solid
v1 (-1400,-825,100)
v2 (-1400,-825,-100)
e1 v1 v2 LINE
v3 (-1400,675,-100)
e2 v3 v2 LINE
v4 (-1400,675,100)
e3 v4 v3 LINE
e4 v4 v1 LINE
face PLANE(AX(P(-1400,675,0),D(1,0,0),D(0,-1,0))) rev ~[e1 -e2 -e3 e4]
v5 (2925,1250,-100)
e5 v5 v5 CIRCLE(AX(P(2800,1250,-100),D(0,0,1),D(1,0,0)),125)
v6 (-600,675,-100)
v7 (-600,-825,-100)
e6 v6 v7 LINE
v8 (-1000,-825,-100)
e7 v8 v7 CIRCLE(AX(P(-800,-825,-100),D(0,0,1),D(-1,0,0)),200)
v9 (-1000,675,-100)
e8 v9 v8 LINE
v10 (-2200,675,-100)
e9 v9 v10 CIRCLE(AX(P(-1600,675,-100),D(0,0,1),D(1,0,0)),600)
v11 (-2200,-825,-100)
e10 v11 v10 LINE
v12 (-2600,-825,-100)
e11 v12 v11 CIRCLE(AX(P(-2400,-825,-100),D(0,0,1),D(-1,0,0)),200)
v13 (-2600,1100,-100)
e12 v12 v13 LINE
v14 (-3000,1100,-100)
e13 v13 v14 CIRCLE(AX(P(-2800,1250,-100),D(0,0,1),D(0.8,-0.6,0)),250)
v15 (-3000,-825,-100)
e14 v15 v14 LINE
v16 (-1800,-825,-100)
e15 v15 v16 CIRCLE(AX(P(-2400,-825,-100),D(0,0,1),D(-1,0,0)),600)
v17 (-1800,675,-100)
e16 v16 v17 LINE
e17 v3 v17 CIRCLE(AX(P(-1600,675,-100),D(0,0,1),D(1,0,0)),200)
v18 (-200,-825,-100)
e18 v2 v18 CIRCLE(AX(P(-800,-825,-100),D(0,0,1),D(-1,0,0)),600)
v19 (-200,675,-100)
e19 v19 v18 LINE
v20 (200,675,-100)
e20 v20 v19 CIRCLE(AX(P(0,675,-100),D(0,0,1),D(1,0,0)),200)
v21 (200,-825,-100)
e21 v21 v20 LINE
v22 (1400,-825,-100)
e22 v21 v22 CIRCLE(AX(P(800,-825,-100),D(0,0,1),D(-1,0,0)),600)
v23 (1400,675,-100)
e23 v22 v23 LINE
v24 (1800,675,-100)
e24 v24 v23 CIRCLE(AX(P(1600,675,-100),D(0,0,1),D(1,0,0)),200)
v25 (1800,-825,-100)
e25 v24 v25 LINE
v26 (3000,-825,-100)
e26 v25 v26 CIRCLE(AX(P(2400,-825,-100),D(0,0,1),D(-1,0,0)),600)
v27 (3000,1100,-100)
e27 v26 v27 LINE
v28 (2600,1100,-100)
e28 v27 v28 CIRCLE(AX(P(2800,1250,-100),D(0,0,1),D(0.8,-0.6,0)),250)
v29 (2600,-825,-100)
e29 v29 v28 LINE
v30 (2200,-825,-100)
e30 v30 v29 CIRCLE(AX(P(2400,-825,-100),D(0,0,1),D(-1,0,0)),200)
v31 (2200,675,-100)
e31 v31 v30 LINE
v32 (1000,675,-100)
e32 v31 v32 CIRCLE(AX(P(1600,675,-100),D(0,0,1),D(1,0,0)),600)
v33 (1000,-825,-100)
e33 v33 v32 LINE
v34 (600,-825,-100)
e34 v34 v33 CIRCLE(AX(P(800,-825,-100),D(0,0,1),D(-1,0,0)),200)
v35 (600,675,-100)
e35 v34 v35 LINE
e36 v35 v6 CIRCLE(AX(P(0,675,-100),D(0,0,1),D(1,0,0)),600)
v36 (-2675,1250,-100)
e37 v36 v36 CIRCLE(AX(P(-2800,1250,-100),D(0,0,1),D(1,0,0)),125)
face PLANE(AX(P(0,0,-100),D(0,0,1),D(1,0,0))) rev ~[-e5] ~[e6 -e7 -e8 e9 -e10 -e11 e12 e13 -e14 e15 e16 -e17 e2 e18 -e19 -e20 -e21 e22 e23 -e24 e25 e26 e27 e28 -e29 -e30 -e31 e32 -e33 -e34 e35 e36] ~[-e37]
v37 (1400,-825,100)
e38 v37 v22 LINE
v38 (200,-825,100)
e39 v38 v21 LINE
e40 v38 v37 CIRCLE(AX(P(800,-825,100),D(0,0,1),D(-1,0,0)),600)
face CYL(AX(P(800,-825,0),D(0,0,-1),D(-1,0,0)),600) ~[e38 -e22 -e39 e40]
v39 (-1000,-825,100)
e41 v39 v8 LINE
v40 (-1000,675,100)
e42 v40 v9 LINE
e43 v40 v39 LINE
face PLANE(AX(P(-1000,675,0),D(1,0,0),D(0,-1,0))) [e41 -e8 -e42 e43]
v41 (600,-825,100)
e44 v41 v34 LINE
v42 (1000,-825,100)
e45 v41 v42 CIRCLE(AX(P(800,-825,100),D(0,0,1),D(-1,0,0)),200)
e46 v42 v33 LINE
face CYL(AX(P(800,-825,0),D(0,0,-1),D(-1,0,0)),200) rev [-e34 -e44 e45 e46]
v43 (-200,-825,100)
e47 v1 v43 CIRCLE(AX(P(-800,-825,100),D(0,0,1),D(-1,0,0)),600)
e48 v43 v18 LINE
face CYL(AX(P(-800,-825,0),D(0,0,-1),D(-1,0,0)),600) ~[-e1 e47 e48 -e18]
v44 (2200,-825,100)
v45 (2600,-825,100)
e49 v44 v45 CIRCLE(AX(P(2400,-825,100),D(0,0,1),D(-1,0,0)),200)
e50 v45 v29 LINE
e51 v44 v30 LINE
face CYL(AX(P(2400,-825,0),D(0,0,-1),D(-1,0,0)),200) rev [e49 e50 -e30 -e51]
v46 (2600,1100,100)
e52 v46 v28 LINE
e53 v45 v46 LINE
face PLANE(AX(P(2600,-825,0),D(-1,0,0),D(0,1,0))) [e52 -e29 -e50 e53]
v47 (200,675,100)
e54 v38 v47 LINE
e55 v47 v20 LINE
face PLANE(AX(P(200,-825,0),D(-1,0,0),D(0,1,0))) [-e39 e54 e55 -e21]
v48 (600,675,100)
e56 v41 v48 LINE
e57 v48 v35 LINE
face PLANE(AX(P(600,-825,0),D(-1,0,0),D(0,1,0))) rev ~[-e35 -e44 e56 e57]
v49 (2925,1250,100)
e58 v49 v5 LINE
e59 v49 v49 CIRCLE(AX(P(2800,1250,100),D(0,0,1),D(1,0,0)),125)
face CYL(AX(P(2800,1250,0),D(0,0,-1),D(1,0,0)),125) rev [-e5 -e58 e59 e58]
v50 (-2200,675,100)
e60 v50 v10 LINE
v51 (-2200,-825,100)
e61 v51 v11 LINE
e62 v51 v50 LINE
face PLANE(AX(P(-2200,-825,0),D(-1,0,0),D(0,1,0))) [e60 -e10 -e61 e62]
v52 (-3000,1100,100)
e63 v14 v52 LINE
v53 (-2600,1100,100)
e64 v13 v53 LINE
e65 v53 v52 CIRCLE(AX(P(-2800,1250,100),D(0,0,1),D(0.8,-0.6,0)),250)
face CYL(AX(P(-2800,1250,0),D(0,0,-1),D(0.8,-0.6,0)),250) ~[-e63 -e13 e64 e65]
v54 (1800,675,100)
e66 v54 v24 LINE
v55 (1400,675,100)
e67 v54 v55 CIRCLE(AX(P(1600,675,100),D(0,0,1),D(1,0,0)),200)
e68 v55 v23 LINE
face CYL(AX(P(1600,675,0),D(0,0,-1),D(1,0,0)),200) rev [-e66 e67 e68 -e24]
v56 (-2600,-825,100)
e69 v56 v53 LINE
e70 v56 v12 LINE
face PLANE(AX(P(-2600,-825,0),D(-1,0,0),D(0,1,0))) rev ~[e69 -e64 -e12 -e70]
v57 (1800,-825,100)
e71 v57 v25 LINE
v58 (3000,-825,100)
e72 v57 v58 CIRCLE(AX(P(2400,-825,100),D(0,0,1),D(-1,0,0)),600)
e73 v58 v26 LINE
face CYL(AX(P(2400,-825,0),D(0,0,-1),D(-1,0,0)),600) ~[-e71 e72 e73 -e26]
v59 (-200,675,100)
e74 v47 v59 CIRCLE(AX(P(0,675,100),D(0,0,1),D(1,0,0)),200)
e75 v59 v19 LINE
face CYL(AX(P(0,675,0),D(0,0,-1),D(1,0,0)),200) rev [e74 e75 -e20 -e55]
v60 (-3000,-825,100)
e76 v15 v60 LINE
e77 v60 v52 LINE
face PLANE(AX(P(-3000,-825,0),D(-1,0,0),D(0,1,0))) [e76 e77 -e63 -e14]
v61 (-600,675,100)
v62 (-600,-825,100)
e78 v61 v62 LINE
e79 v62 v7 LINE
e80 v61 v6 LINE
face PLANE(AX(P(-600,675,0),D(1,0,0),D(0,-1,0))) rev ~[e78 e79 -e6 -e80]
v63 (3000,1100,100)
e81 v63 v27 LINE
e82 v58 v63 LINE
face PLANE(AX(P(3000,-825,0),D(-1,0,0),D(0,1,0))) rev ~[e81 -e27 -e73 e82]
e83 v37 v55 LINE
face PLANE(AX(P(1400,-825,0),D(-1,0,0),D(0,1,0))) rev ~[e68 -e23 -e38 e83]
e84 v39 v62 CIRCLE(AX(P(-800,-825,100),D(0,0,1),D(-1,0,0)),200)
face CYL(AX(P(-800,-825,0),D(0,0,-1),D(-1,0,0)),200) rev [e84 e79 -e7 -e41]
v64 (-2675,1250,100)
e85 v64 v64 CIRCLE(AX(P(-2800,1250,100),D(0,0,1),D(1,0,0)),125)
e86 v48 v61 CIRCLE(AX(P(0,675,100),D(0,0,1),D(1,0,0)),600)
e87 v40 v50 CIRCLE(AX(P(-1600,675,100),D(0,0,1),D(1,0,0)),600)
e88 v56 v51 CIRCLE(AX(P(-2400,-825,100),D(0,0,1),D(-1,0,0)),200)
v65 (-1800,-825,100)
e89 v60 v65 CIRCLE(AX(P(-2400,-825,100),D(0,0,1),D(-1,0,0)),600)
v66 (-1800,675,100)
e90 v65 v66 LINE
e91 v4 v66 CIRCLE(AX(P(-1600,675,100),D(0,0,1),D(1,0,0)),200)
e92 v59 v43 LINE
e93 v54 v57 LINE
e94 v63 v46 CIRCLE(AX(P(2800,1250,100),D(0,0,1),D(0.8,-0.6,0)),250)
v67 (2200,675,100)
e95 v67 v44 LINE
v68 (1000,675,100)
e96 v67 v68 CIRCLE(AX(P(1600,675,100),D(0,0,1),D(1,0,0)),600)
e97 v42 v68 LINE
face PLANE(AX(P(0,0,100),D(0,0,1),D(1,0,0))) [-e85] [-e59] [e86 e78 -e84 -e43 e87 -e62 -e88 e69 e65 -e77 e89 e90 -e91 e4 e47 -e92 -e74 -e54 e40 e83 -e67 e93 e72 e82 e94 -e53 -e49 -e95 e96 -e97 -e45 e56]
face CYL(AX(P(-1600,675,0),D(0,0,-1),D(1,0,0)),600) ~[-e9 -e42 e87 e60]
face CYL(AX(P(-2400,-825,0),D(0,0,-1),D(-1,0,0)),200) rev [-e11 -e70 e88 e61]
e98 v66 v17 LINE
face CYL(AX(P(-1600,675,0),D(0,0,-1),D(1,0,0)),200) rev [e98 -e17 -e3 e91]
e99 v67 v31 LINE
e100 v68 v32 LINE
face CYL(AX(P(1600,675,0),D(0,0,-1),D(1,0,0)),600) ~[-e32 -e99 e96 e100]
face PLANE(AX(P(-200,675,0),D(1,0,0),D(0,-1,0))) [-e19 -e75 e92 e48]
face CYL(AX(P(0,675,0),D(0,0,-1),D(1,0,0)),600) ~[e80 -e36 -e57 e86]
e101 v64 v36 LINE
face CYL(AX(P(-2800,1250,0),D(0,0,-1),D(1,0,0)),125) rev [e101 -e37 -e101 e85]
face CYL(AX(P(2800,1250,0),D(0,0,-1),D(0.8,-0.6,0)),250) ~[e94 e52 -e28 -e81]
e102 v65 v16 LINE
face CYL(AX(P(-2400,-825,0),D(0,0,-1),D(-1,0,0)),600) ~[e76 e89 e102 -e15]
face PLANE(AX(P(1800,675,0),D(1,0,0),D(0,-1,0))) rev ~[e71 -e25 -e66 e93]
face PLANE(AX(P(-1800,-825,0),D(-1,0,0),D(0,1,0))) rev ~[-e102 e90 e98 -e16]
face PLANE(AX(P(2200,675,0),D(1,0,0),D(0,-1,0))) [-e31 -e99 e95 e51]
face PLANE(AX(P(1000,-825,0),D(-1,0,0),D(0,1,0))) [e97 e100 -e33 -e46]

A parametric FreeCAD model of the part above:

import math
import FreeCAD as App
import Part
import Sketcher
from FreeCAD import Vector

doc = App.newDocument("Part")
params = doc.addObject("Spreadsheet::Sheet", "Params")
for row, (alias, value) in enumerate([
    ("sketch1_diameter", "250 mm"),
    ("sketch1_radius", "250 mm"),
    ("sketch1_height", "1500 mm"),
    ("sketch1_radius2", "600 mm"),
    ("sketch1_radius3", "200 mm"),
    ("pad1_length", "200 mm"),
], start=1):
    params.set(f"A{row}", alias)
    params.set(f"B{row}", "=" + value)
    params.setAlias(f"B{row}", alias)

body = doc.addObject("PartDesign::Body", "Body")

sketch1 = body.newObject("Sketcher::SketchObject", "Sketch")
sketch1.AttachmentSupport = (doc.getObject("XY_Plane"), [""])
sketch1.MapMode = "FlatFace"
sketch1.addGeometry([
    Part.LineSegment(Vector(-2600, -825, 0), Vector(-2600, 1100, 0)),
    Part.ArcOfCircle(Part.Circle(Vector(-2800, 1250, 0), Vector(0, 0, 1), 250), math.radians(-37), math.radians(217)),
    Part.LineSegment(Vector(-3000, 1100, 0), Vector(-3000, -825, 0)),
    Part.ArcOfCircle(Part.Circle(Vector(-2400, -825, 0), Vector(0, 0, 1), 600), math.radians(180), math.radians(360)),
    Part.LineSegment(Vector(-1800, -825, 0), Vector(-1800, 675, 0)),
    Part.ArcOfCircle(Part.Circle(Vector(-1600, 675, 0), Vector(0, 0, 1), 200), math.radians(0), math.radians(180)),
    Part.LineSegment(Vector(-1400, 675, 0), Vector(-1400, -825, 0)),
    Part.ArcOfCircle(Part.Circle(Vector(-800, -825, 0), Vector(0, 0, 1), 600), math.radians(180), math.radians(360)),
    Part.LineSegment(Vector(-200, -825, 0), Vector(-200, 675, 0)),
    Part.ArcOfCircle(Part.Circle(Vector(0, 675, 0), Vector(0, 0, 1), 200), math.radians(0), math.radians(180)),
    Part.LineSegment(Vector(200, 675, 0), Vector(200, -825, 0)),
    Part.ArcOfCircle(Part.Circle(Vector(800, -825, 0), Vector(0, 0, 1), 600), math.radians(180), math.radians(360)),
    Part.LineSegment(Vector(1400, -825, 0), Vector(1400, 675, 0)),
    Part.ArcOfCircle(Part.Circle(Vector(1600, 675, 0), Vector(0, 0, 1), 200), math.radians(0), math.radians(180)),
    Part.LineSegment(Vector(1800, 675, 0), Vector(1800, -825, 0)),
    Part.ArcOfCircle(Part.Circle(Vector(2400, -825, 0), Vector(0, 0, 1), 600), math.radians(180), math.radians(360)),
    Part.LineSegment(Vector(3000, -825, 0), Vector(3000, 1100, 0)),
    Part.ArcOfCircle(Part.Circle(Vector(2800, 1250, 0), Vector(0, 0, 1), 250), math.radians(-37), math.radians(217)),
    Part.LineSegment(Vector(2600, 1100, 0), Vector(2600, -825, 0)),
    Part.ArcOfCircle(Part.Circle(Vector(2400, -825, 0), Vector(0, 0, 1), 200), math.radians(180), math.radians(360)),
    Part.LineSegment(Vector(2200, -825, 0), Vector(2200, 675, 0)),
    Part.ArcOfCircle(Part.Circle(Vector(1600, 675, 0), Vector(0, 0, 1), 600), math.radians(0), math.radians(180)),
    Part.LineSegment(Vector(1000, 675, 0), Vector(1000, -825, 0)),
    Part.ArcOfCircle(Part.Circle(Vector(800, -825, 0), Vector(0, 0, 1), 200), math.radians(180), math.radians(360)),
    Part.LineSegment(Vector(600, -825, 0), Vector(600, 675, 0)),
    Part.ArcOfCircle(Part.Circle(Vector(0, 675, 0), Vector(0, 0, 1), 600), math.radians(0), math.radians(180)),
    Part.LineSegment(Vector(-600, 675, 0), Vector(-600, -825, 0)),
    Part.ArcOfCircle(Part.Circle(Vector(-800, -825, 0), Vector(0, 0, 1), 200), math.radians(180), math.radians(360)),
    Part.LineSegment(Vector(-1000, -825, 0), Vector(-1000, 675, 0)),
    Part.ArcOfCircle(Part.Circle(Vector(-1600, 675, 0), Vector(0, 0, 1), 600), math.radians(0), math.radians(180)),
    Part.LineSegment(Vector(-2200, 675, 0), Vector(-2200, -825, 0)),
    Part.ArcOfCircle(Part.Circle(Vector(-2400, -825, 0), Vector(0, 0, 1), 200), math.radians(180), math.radians(360)),
    Part.Circle(Vector(-2800, 1250, 0), Vector(0, 0, 1), 125),
    Part.Circle(Vector(2800, 1250, 0), Vector(0, 0, 1), 125),
], False)
sketch1.addConstraint([
    Sketcher.Constraint("Coincident", 0, 2, 1, 1),
    Sketcher.Constraint("Coincident", 1, 2, 2, 1),
    Sketcher.Constraint("Tangent", 2, 2, 3, 1),
    Sketcher.Constraint("Tangent", 3, 2, 4, 1),
    Sketcher.Constraint("Tangent", 4, 2, 5, 2),
    Sketcher.Constraint("Tangent", 5, 1, 6, 1),
    Sketcher.Constraint("Tangent", 6, 2, 7, 1),
    Sketcher.Constraint("Tangent", 7, 2, 8, 1),
    Sketcher.Constraint("Tangent", 8, 2, 9, 2),
    Sketcher.Constraint("Tangent", 9, 1, 10, 1),
    Sketcher.Constraint("Tangent", 10, 2, 11, 1),
    Sketcher.Constraint("Tangent", 11, 2, 12, 1),
    Sketcher.Constraint("Tangent", 12, 2, 13, 2),
    Sketcher.Constraint("Tangent", 13, 1, 14, 1),
    Sketcher.Constraint("Tangent", 14, 2, 15, 1),
    Sketcher.Constraint("Tangent", 15, 2, 16, 1),
    Sketcher.Constraint("Coincident", 16, 2, 17, 1),
    Sketcher.Constraint("Coincident", 17, 2, 18, 1),
    Sketcher.Constraint("Tangent", 18, 2, 19, 2),
    Sketcher.Constraint("Tangent", 19, 1, 20, 1),
    Sketcher.Constraint("Tangent", 20, 2, 21, 1),
    Sketcher.Constraint("Tangent", 21, 2, 22, 1),
    Sketcher.Constraint("Tangent", 22, 2, 23, 2),
    Sketcher.Constraint("Tangent", 23, 1, 24, 1),
    Sketcher.Constraint("Tangent", 24, 2, 25, 1),
    Sketcher.Constraint("Tangent", 25, 2, 26, 1),
    Sketcher.Constraint("Tangent", 26, 2, 27, 2),
    Sketcher.Constraint("Tangent", 27, 1, 28, 1),
    Sketcher.Constraint("Tangent", 28, 2, 29, 1),
    Sketcher.Constraint("Tangent", 29, 2, 30, 1),
    Sketcher.Constraint("Tangent", 30, 2, 31, 2),
    Sketcher.Constraint("Tangent", 31, 1, 0, 1),
    Sketcher.Constraint("Vertical", 0),
    Sketcher.Constraint("Vertical", 2),
    Sketcher.Constraint("Vertical", 4),
    Sketcher.Constraint("Vertical", 6),
    Sketcher.Constraint("Vertical", 8),
    Sketcher.Constraint("Vertical", 10),
    Sketcher.Constraint("Vertical", 12),
    Sketcher.Constraint("Vertical", 14),
    Sketcher.Constraint("Vertical", 16),
    Sketcher.Constraint("Vertical", 18),
    Sketcher.Constraint("Vertical", 20),
    Sketcher.Constraint("Vertical", 22),
    Sketcher.Constraint("Vertical", 24),
    Sketcher.Constraint("Vertical", 26),
    Sketcher.Constraint("Vertical", 28),
    Sketcher.Constraint("Vertical", 30),
    Sketcher.Constraint("Coincident", 19, 3, 15, 3),
    Sketcher.Constraint("Coincident", 21, 3, 13, 3),
    Sketcher.Constraint("Coincident", 23, 3, 11, 3),
    Sketcher.Constraint("Coincident", 25, 3, 9, 3),
    Sketcher.Constraint("Coincident", 27, 3, 7, 3),
    Sketcher.Constraint("Coincident", 29, 3, 5, 3),
    Sketcher.Constraint("Coincident", 31, 3, 3, 3),
    Sketcher.Constraint("Coincident", 32, 3, 1, 3),
    Sketcher.Constraint("Coincident", 33, 3, 17, 3),
    Sketcher.Constraint("Equal", 3, 7),
    Sketcher.Constraint("Equal", 5, 9),
    Sketcher.Constraint("Equal", 7, 11),
    Sketcher.Constraint("Equal", 9, 13),
    Sketcher.Constraint("Equal", 11, 15),
    Sketcher.Constraint("Equal", 1, 17),
    Sketcher.Constraint("Equal", 13, 19),
    Sketcher.Constraint("Equal", 32, 33),
    Sketcher.Constraint("Symmetric", 7, 3, 11, 3, -2),
    Sketcher.Constraint("Symmetric", 1, 3, 17, 3, -2),
    Sketcher.Constraint("Horizontal", 3, 3, 7, 3),
    Sketcher.Constraint("Horizontal", 5, 3, 9, 3),
    Sketcher.Constraint("Horizontal", 9, 3, 13, 3),
    Sketcher.Constraint("Horizontal", 11, 3, 15, 3),
    Sketcher.Constraint("Horizontal", 0, 2, 1, 2),
    Sketcher.Constraint("Diameter", 32, 250.0),
    Sketcher.Constraint("Radius", 1, 250.0),
    Sketcher.Constraint("DistanceY", 4, 1, 4, 2, 1500.0),
    Sketcher.Constraint("Radius", 3, 600.0),
    Sketcher.Constraint("Radius", 5, 200.0),
    Sketcher.Constraint("DistanceY", 0, 1, 0, 2, 1925.0),
    Sketcher.Constraint("DistanceY", -1, 1, 1, 3, 1250.0),
])
sketch1.setExpression("Constraints[72]", "Params.sketch1_diameter")
sketch1.setExpression("Constraints[73]", "Params.sketch1_radius")
sketch1.setExpression("Constraints[74]", "Params.sketch1_height")
sketch1.setExpression("Constraints[75]", "Params.sketch1_radius2")
sketch1.setExpression("Constraints[76]", "Params.sketch1_radius3")
pad1 = body.newObject("PartDesign::Pad", "Pad")
pad1.Profile = sketch1
pad1.setExpression("Length", "Params.pad1_length")
pad1.Midplane = True

doc.recompute()
